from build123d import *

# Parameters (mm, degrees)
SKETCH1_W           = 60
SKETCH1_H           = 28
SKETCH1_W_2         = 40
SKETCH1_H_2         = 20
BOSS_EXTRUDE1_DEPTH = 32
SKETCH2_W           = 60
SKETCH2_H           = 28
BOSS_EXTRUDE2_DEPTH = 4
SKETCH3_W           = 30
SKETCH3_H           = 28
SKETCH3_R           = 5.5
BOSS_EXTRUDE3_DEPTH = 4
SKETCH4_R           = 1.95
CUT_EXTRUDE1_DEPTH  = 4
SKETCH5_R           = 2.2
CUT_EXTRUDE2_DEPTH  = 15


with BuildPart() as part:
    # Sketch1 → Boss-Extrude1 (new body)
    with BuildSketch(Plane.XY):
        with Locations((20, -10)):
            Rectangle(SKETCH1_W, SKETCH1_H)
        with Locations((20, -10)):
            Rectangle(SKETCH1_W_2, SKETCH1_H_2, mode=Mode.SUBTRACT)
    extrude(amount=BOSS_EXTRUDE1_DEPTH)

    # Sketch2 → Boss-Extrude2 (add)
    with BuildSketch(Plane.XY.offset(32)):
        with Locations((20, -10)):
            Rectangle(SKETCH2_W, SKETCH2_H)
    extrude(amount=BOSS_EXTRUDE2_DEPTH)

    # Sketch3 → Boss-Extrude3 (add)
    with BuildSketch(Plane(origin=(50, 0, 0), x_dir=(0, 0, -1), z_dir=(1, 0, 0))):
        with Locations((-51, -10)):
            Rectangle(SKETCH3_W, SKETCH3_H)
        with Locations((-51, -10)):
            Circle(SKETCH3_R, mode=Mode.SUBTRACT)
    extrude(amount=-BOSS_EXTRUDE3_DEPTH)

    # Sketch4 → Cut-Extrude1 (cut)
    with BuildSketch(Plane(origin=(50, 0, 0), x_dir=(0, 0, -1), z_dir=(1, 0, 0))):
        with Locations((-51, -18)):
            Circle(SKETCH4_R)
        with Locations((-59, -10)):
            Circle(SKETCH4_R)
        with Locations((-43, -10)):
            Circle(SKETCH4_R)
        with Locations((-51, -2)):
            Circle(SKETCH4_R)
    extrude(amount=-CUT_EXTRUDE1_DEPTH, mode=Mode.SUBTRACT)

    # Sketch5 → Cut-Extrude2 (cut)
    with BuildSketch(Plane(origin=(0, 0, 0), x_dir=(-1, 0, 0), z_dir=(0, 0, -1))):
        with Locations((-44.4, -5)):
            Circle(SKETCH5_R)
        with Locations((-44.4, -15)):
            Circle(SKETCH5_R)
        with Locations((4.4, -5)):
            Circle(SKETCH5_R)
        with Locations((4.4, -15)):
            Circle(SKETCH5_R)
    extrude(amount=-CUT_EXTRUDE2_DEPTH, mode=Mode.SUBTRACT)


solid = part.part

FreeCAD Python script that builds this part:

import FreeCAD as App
import Part
import Sketcher

V = App.Vector
Q = App.Units.Quantity


def add_polygon(sketch, points):
    """Adds a closed chain of lines whose ends are joined by coincident constraints."""
    first, n = sketch.GeometryCount, len(points)
    for a, b in zip(points, points[1:] + points[:1]):
        sketch.addGeometry(Part.LineSegment(App.Vector(*a, 0), App.Vector(*b, 0)), False)
    for i in range(n):
        sketch.addConstraint(Sketcher.Constraint("Coincident", first + i, 2, first + (i + 1) % n, 1))

doc = App.newDocument("Part")
body = doc.addObject("PartDesign::Body", "Body")

# Sketch on XY plane
sketch1 = body.newObject("Sketcher::SketchObject", "Sketch")
sketch1.AttachmentSupport = (doc.getObject("XY_Plane"), [""])
sketch1.MapMode = "FlatFace"
add_polygon(sketch1, [(-10, 4), (-10, -24), (50, -24), (50, 4)])  # lines 0-3
add_polygon(sketch1, [(40, -20), (0, -20), (0, 0), (40, 0)])  # lines 4-7
sketch1.addConstraint([
    Sketcher.Constraint("Vertical", 0),
    Sketcher.Constraint("Horizontal", 1),
    Sketcher.Constraint("Vertical", 2),
    Sketcher.Constraint("Horizontal", 3),
    Sketcher.Constraint("Horizontal", 4),
    Sketcher.Constraint("Vertical", 5),
    Sketcher.Constraint("Horizontal", 6),
    Sketcher.Constraint("Vertical", 7),
    Sketcher.Constraint("Coincident", 5, 2, -1, 1),
    Sketcher.Constraint("DistanceX", 1, 1, 1, 2, Q("60 mm")),
    Sketcher.Constraint("DistanceX", 4, 2, 4, 1, Q("40 mm")),
    Sketcher.Constraint("DistanceY", 0, 2, 0, 1, Q("28 mm")),
    Sketcher.Constraint("DistanceY", 5, 1, 5, 2, Q("20 mm")),
    Sketcher.Constraint("DistanceX", 0, 2, -1, 1, Q("10 mm")),
    Sketcher.Constraint("DistanceY", 0, 2, -1, 1, Q("24 mm")),
])
pad1 = body.newObject("PartDesign::Pad", "Pad")
pad1.Profile = sketch1
pad1.Length = 32

# Sketch on XY plane
sketch2 = body.newObject("Sketcher::SketchObject", "Sketch001")
sketch2.AttachmentSupport = (doc.getObject("XY_Plane"), [""])
sketch2.MapMode = "FlatFace"
sketch2.AttachmentOffset = App.Placement(V(0, 0, 32), App.Rotation())
add_polygon(sketch2, [(-10, 4), (-10, -24), (50, -24), (50, 4)])  # lines 0-3
sketch2.addConstraint([
    Sketcher.Constraint("Vertical", 0),
    Sketcher.Constraint("Horizontal", 1),
    Sketcher.Constraint("Vertical", 2),
    Sketcher.Constraint("Horizontal", 3),
    Sketcher.Constraint("DistanceX", 1, 1, 1, 2, Q("60 mm")),
    Sketcher.Constraint("DistanceY", 0, 2, 0, 1, Q("28 mm")),
    Sketcher.Constraint("DistanceX", 0, 2, -1, 1, Q("10 mm")),
    Sketcher.Constraint("DistanceY", 0, 2, -1, 1, Q("24 mm")),
])
pad2 = body.newObject("PartDesign::Pad", "Pad001")
pad2.Profile = sketch2
pad2.Length = 4

# Sketch on YZ plane
sketch3 = body.newObject("Sketcher::SketchObject", "Sketch002")
sketch3.AttachmentSupport = (doc.getObject("YZ_Plane"), [""])
sketch3.MapMode = "FlatFace"
sketch3.AttachmentOffset = App.Placement(V(0, 0, 50), App.Rotation())
add_polygon(sketch3, [(4, 66), (-24, 66), (-24, 36), (4, 36)])  # lines 0-3
sketch3.addGeometry(Part.Circle(V(-10, 51, 0), V(0, 0, 1), 5.5), False)  # 4
sketch3.addConstraint([
    Sketcher.Constraint("Horizontal", 0),
    Sketcher.Constraint("Vertical", 1),
    Sketcher.Constraint("Horizontal", 2),
    Sketcher.Constraint("Vertical", 3),
    Sketcher.Constraint("Diameter", 4, Q("11 mm")),
    Sketcher.Constraint("DistanceX", 0, 2, 0, 1, Q("28 mm")),
    Sketcher.Constraint("DistanceY", 1, 2, 1, 1, Q("30 mm")),
    Sketcher.Constraint("DistanceX", 4, 3, -1, 1, Q("10 mm")),
    Sketcher.Constraint("DistanceY", -1, 1, 4, 3, Q("51 mm")),
    Sketcher.Constraint("DistanceX", 0, 2, -1, 1, Q("24 mm")),
    Sketcher.Constraint("DistanceY", -1, 1, 0, 2, Q("66 mm")),
])
pad3 = body.newObject("PartDesign::Pad", "Pad002")
pad3.Profile = sketch3
pad3.Length = 4
pad3.Reversed = True

# Sketch on YZ plane
sketch4 = body.newObject("Sketcher::SketchObject", "Sketch003")
sketch4.AttachmentSupport = (doc.getObject("YZ_Plane"), [""])
sketch4.MapMode = "FlatFace"
sketch4.AttachmentOffset = App.Placement(V(0, 0, 50), App.Rotation())
sketch4.addGeometry([
    Part.Circle(V(-18, 51, 0), V(0, 0, 1), 1.95),
    Part.Circle(V(-10, 59, 0), V(0, 0, 1), 1.95),
    Part.Circle(V(-10, 43, 0), V(0, 0, 1), 1.95),
    Part.Circle(V(-2, 51, 0), V(0, 0, 1), 1.95),
], False)
sketch4.addConstraint([
    Sketcher.Constraint("Equal", 0, 1),
    Sketcher.Constraint("Equal", 1, 2),
    Sketcher.Constraint("Equal", 2, 3),
    Sketcher.Constraint("Horizontal", 0, 3, 3, 3),
    Sketcher.Constraint("Vertical", 1, 3, 2, 3),
    Sketcher.Constraint("Diameter", 0, Q("3.9 mm")),
    Sketcher.Constraint("DistanceX", 0, 3, -1, 1, Q("18 mm")),
    Sketcher.Constraint("DistanceY", -1, 1, 0, 3, Q("51 mm")),
    Sketcher.Constraint("DistanceX", 1, 3, -1, 1, Q("10 mm")),
    Sketcher.Constraint("DistanceY", -1, 1, 1, 3, Q("59 mm")),
    Sketcher.Constraint("DistanceY", -1, 1, 2, 3, Q("43 mm")),
    Sketcher.Constraint("DistanceX", 3, 3, -1, 1, Q("2 mm")),
])
pocket1 = body.newObject("PartDesign::Pocket", "Pocket")
pocket1.Profile = sketch4
pocket1.Length = 4

# Sketch on XY plane
sketch5 = body.newObject("Sketcher::SketchObject", "Sketch004")
sketch5.AttachmentSupport = (doc.getObject("XY_Plane"), [""])
sketch5.MapMode = "FlatFace"
sketch5.addGeometry([
    Part.Circle(V(44.4, -5, 0), V(0, 0, 1), 2.2),
    Part.Circle(V(44.4, -15, 0), V(0, 0, 1), 2.2),
    Part.Circle(V(-4.4, -5, 0), V(0, 0, 1), 2.2),
    Part.Circle(V(-4.4, -15, 0), V(0, 0, 1), 2.2),
], False)
sketch5.addConstraint([
    Sketcher.Constraint("Equal", 0, 1),
    Sketcher.Constraint("Equal", 1, 2),
    Sketcher.Constraint("Equal", 2, 3),
    Sketcher.Constraint("Horizontal", 0, 3, 2, 3),
    Sketcher.Constraint("Horizontal", 1, 3, 3, 3),
    Sketcher.Constraint("Vertical", 0, 3, 1, 3),
    Sketcher.Constraint("Vertical", 2, 3, 3, 3),
    Sketcher.Constraint("Diameter", 0, Q("4.4 mm")),
    Sketcher.Constraint("DistanceY", 0, 3, -1, 1, Q("5 mm")),
    Sketcher.Constraint("DistanceY", 1, 3, -1, 1, Q("15 mm")),
    Sketcher.Constraint("DistanceX", -1, 1, 0, 3, Q("44.4 mm")),
    Sketcher.Constraint("DistanceX", 2, 3, -1, 1, Q("4.4 mm")),
])
pocket2 = body.newObject("PartDesign::Pocket", "Pocket001")
pocket2.Profile = sketch5
pocket2.Length = 15
pocket2.Reversed = True

doc.recompute()
